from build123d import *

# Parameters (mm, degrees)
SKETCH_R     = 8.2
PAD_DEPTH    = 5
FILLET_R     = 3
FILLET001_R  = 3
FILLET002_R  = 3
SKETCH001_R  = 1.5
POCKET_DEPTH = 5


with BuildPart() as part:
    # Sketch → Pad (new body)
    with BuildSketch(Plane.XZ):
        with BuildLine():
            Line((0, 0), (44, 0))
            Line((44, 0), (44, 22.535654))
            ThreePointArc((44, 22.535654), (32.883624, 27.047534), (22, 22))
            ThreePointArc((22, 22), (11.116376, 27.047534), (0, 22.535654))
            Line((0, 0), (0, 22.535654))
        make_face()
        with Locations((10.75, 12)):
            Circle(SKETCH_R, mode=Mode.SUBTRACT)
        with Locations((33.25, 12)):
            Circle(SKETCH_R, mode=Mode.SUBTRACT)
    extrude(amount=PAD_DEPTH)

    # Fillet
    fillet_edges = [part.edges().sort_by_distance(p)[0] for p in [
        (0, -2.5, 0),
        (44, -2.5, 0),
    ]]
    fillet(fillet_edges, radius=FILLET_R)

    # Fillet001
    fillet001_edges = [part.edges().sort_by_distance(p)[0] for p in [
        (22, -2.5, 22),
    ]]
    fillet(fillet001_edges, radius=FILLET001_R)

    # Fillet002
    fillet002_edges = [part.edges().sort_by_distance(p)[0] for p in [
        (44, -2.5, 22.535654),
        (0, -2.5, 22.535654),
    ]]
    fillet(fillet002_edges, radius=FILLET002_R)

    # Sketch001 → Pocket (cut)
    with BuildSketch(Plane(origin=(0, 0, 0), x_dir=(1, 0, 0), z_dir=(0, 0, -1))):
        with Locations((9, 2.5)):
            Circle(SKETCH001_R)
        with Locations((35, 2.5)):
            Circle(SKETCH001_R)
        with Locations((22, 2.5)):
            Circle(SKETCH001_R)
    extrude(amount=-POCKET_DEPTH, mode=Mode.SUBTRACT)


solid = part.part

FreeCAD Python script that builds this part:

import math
import FreeCAD as App
import Part
import Sketcher
from FreeCAD import Vector
Q = App.Units.Quantity


def edges_at(feature, points):
    """Names of the edges that pass closest to the given points."""
    edges = feature.Shape.Edges
    near = lambda p: min(range(len(edges)), key=lambda i: edges[i].distToShape(Part.Vertex(*p))[0])
    return sorted({f"Edge{near(p) + 1}" for p in points})

doc = App.newDocument("Part")
body = doc.addObject("PartDesign::Body", "Body")

# Sketch on XZ plane
sketch1 = body.newObject("Sketcher::SketchObject", "Sketch")
sketch1.AttachmentSupport = (doc.getObject("XZ_Plane"), [""])
sketch1.MapMode = "FlatFace"
sketch1.addGeometry([
    Part.LineSegment(Vector(0, 0, 0), Vector(44, 0, 0)),  # 0
    Part.LineSegment(Vector(44, 0, 0), Vector(44, 22.535654, 0)),  # 1
    Part.ArcOfCircle(Part.Circle(Vector(33.25, 12.000001, 0), Vector(0, 0, 1), 15.051993), math.radians(44.42305), math.radians(138.366463)),  # 2
    Part.ArcOfCircle(Part.Circle(Vector(10.75, 12.000001, 0), Vector(0, 0, 1), 15.051993), math.radians(41.633537), math.radians(135.57695)),  # 3
    Part.LineSegment(Vector(0, 22.535654, 0), Vector(0, 0, 0)),  # 4
    Part.Circle(Vector(10.75, 12, 0), Vector(0, 0, 1), 8.2),  # 5
    Part.Circle(Vector(33.25, 12, 0), Vector(0, 0, 1), 8.2),  # 6
], False)
sketch1.addConstraint([
    Sketcher.Constraint("Coincident", 0, 2, 1, 1),
    Sketcher.Constraint("Coincident", 1, 2, 2, 1),
    Sketcher.Constraint("Coincident", 2, 2, 3, 1),
    Sketcher.Constraint("Coincident", 3, 2, 4, 1),
    Sketcher.Constraint("Coincident", 4, 2, 0, 1),
    Sketcher.Constraint("Horizontal", 0),
    Sketcher.Constraint("Vertical", 1),
    Sketcher.Constraint("Vertical", 4),
    Sketcher.Constraint("Coincident", 4, 2, -1, 1),
    Sketcher.Constraint("Coincident", 5, 3, 3, 3),
    Sketcher.Constraint("Coincident", 6, 3, 2, 3),
    Sketcher.Constraint("Equal", 2, 3),
    Sketcher.Constraint("Equal", 5, 6),
    Sketcher.Constraint("Horizontal", 2, 3, 3, 3),
    Sketcher.Constraint("Horizontal", 1, 2, 3, 2),
    Sketcher.Constraint("Diameter", 5, Q("16.4 mm")),
    Sketcher.Constraint("DistanceX", 0, 1, 0, 2, Q("44 mm")),
    Sketcher.Constraint("DistanceY", -1, 1, 2, 3, Q("12.000001 mm")),
    Sketcher.Constraint("DistanceY", -1, 1, 2, 2, Q("22 mm")),
    Sketcher.Constraint("DistanceX", 3, 3, 2, 3, Q("22.5 mm")),
])
pad1 = body.newObject("PartDesign::Pad", "Pad")
pad1.Profile = sketch1
pad1.Length = 5
doc.recompute()

fillet = body.newObject("PartDesign::Fillet", "Fillet")
fillet.Base = (pad1, edges_at(pad1, [(0, -2.5, 0), (44, -2.5, 0)]))
fillet.Radius = 3
doc.recompute()

fillet2 = body.newObject("PartDesign::Fillet", "Fillet001")
fillet2.Base = (fillet, edges_at(fillet, [(22, -2.5, 22)]))
fillet2.Radius = 3
doc.recompute()

fillet3 = body.newObject("PartDesign::Fillet", "Fillet002")
fillet3.Base = (fillet2, edges_at(fillet2, [(44, -2.5, 22.536), (0, -2.5, 22.536)]))
fillet3.Radius = 3

# Sketch on XY plane
sketch2 = body.newObject("Sketcher::SketchObject", "Sketch001")
sketch2.AttachmentSupport = (doc.getObject("XY_Plane"), [""])
sketch2.MapMode = "FlatFace"
sketch2.addGeometry([
    Part.Circle(Vector(9, -2.5, 0), Vector(0, 0, 1), 1.5),
    Part.Circle(Vector(35, -2.5, 0), Vector(0, 0, 1), 1.5),
    Part.Circle(Vector(22, -2.5, 0), Vector(0, 0, 1), 1.5),
], False)
sketch2.addConstraint([
    Sketcher.Constraint("Equal", 0, 1),
    Sketcher.Constraint("Equal", 1, 2),
    Sketcher.Constraint("Horizontal", 0, 3, 1, 3),
    Sketcher.Constraint("Horizontal", 1, 3, 2, 3),
    Sketcher.Constraint("Diameter", 0, Q("3 mm")),
    Sketcher.Constraint("DistanceX", -1, 1, 0, 3, Q("9 mm")),
    Sketcher.Constraint("DistanceX", -1, 1, 1, 3, Q("35 mm")),
    Sketcher.Constraint("DistanceX", -1, 1, 2, 3, Q("22 mm")),
    Sketcher.Constraint("DistanceY", 0, 3, -1, 1, Q("2.5 mm")),
])
pocket1 = body.newObject("PartDesign::Pocket", "Pocket")
pocket1.Profile = sketch2
pocket1.Length = 5
pocket1.Reversed = True

doc.recompute()
